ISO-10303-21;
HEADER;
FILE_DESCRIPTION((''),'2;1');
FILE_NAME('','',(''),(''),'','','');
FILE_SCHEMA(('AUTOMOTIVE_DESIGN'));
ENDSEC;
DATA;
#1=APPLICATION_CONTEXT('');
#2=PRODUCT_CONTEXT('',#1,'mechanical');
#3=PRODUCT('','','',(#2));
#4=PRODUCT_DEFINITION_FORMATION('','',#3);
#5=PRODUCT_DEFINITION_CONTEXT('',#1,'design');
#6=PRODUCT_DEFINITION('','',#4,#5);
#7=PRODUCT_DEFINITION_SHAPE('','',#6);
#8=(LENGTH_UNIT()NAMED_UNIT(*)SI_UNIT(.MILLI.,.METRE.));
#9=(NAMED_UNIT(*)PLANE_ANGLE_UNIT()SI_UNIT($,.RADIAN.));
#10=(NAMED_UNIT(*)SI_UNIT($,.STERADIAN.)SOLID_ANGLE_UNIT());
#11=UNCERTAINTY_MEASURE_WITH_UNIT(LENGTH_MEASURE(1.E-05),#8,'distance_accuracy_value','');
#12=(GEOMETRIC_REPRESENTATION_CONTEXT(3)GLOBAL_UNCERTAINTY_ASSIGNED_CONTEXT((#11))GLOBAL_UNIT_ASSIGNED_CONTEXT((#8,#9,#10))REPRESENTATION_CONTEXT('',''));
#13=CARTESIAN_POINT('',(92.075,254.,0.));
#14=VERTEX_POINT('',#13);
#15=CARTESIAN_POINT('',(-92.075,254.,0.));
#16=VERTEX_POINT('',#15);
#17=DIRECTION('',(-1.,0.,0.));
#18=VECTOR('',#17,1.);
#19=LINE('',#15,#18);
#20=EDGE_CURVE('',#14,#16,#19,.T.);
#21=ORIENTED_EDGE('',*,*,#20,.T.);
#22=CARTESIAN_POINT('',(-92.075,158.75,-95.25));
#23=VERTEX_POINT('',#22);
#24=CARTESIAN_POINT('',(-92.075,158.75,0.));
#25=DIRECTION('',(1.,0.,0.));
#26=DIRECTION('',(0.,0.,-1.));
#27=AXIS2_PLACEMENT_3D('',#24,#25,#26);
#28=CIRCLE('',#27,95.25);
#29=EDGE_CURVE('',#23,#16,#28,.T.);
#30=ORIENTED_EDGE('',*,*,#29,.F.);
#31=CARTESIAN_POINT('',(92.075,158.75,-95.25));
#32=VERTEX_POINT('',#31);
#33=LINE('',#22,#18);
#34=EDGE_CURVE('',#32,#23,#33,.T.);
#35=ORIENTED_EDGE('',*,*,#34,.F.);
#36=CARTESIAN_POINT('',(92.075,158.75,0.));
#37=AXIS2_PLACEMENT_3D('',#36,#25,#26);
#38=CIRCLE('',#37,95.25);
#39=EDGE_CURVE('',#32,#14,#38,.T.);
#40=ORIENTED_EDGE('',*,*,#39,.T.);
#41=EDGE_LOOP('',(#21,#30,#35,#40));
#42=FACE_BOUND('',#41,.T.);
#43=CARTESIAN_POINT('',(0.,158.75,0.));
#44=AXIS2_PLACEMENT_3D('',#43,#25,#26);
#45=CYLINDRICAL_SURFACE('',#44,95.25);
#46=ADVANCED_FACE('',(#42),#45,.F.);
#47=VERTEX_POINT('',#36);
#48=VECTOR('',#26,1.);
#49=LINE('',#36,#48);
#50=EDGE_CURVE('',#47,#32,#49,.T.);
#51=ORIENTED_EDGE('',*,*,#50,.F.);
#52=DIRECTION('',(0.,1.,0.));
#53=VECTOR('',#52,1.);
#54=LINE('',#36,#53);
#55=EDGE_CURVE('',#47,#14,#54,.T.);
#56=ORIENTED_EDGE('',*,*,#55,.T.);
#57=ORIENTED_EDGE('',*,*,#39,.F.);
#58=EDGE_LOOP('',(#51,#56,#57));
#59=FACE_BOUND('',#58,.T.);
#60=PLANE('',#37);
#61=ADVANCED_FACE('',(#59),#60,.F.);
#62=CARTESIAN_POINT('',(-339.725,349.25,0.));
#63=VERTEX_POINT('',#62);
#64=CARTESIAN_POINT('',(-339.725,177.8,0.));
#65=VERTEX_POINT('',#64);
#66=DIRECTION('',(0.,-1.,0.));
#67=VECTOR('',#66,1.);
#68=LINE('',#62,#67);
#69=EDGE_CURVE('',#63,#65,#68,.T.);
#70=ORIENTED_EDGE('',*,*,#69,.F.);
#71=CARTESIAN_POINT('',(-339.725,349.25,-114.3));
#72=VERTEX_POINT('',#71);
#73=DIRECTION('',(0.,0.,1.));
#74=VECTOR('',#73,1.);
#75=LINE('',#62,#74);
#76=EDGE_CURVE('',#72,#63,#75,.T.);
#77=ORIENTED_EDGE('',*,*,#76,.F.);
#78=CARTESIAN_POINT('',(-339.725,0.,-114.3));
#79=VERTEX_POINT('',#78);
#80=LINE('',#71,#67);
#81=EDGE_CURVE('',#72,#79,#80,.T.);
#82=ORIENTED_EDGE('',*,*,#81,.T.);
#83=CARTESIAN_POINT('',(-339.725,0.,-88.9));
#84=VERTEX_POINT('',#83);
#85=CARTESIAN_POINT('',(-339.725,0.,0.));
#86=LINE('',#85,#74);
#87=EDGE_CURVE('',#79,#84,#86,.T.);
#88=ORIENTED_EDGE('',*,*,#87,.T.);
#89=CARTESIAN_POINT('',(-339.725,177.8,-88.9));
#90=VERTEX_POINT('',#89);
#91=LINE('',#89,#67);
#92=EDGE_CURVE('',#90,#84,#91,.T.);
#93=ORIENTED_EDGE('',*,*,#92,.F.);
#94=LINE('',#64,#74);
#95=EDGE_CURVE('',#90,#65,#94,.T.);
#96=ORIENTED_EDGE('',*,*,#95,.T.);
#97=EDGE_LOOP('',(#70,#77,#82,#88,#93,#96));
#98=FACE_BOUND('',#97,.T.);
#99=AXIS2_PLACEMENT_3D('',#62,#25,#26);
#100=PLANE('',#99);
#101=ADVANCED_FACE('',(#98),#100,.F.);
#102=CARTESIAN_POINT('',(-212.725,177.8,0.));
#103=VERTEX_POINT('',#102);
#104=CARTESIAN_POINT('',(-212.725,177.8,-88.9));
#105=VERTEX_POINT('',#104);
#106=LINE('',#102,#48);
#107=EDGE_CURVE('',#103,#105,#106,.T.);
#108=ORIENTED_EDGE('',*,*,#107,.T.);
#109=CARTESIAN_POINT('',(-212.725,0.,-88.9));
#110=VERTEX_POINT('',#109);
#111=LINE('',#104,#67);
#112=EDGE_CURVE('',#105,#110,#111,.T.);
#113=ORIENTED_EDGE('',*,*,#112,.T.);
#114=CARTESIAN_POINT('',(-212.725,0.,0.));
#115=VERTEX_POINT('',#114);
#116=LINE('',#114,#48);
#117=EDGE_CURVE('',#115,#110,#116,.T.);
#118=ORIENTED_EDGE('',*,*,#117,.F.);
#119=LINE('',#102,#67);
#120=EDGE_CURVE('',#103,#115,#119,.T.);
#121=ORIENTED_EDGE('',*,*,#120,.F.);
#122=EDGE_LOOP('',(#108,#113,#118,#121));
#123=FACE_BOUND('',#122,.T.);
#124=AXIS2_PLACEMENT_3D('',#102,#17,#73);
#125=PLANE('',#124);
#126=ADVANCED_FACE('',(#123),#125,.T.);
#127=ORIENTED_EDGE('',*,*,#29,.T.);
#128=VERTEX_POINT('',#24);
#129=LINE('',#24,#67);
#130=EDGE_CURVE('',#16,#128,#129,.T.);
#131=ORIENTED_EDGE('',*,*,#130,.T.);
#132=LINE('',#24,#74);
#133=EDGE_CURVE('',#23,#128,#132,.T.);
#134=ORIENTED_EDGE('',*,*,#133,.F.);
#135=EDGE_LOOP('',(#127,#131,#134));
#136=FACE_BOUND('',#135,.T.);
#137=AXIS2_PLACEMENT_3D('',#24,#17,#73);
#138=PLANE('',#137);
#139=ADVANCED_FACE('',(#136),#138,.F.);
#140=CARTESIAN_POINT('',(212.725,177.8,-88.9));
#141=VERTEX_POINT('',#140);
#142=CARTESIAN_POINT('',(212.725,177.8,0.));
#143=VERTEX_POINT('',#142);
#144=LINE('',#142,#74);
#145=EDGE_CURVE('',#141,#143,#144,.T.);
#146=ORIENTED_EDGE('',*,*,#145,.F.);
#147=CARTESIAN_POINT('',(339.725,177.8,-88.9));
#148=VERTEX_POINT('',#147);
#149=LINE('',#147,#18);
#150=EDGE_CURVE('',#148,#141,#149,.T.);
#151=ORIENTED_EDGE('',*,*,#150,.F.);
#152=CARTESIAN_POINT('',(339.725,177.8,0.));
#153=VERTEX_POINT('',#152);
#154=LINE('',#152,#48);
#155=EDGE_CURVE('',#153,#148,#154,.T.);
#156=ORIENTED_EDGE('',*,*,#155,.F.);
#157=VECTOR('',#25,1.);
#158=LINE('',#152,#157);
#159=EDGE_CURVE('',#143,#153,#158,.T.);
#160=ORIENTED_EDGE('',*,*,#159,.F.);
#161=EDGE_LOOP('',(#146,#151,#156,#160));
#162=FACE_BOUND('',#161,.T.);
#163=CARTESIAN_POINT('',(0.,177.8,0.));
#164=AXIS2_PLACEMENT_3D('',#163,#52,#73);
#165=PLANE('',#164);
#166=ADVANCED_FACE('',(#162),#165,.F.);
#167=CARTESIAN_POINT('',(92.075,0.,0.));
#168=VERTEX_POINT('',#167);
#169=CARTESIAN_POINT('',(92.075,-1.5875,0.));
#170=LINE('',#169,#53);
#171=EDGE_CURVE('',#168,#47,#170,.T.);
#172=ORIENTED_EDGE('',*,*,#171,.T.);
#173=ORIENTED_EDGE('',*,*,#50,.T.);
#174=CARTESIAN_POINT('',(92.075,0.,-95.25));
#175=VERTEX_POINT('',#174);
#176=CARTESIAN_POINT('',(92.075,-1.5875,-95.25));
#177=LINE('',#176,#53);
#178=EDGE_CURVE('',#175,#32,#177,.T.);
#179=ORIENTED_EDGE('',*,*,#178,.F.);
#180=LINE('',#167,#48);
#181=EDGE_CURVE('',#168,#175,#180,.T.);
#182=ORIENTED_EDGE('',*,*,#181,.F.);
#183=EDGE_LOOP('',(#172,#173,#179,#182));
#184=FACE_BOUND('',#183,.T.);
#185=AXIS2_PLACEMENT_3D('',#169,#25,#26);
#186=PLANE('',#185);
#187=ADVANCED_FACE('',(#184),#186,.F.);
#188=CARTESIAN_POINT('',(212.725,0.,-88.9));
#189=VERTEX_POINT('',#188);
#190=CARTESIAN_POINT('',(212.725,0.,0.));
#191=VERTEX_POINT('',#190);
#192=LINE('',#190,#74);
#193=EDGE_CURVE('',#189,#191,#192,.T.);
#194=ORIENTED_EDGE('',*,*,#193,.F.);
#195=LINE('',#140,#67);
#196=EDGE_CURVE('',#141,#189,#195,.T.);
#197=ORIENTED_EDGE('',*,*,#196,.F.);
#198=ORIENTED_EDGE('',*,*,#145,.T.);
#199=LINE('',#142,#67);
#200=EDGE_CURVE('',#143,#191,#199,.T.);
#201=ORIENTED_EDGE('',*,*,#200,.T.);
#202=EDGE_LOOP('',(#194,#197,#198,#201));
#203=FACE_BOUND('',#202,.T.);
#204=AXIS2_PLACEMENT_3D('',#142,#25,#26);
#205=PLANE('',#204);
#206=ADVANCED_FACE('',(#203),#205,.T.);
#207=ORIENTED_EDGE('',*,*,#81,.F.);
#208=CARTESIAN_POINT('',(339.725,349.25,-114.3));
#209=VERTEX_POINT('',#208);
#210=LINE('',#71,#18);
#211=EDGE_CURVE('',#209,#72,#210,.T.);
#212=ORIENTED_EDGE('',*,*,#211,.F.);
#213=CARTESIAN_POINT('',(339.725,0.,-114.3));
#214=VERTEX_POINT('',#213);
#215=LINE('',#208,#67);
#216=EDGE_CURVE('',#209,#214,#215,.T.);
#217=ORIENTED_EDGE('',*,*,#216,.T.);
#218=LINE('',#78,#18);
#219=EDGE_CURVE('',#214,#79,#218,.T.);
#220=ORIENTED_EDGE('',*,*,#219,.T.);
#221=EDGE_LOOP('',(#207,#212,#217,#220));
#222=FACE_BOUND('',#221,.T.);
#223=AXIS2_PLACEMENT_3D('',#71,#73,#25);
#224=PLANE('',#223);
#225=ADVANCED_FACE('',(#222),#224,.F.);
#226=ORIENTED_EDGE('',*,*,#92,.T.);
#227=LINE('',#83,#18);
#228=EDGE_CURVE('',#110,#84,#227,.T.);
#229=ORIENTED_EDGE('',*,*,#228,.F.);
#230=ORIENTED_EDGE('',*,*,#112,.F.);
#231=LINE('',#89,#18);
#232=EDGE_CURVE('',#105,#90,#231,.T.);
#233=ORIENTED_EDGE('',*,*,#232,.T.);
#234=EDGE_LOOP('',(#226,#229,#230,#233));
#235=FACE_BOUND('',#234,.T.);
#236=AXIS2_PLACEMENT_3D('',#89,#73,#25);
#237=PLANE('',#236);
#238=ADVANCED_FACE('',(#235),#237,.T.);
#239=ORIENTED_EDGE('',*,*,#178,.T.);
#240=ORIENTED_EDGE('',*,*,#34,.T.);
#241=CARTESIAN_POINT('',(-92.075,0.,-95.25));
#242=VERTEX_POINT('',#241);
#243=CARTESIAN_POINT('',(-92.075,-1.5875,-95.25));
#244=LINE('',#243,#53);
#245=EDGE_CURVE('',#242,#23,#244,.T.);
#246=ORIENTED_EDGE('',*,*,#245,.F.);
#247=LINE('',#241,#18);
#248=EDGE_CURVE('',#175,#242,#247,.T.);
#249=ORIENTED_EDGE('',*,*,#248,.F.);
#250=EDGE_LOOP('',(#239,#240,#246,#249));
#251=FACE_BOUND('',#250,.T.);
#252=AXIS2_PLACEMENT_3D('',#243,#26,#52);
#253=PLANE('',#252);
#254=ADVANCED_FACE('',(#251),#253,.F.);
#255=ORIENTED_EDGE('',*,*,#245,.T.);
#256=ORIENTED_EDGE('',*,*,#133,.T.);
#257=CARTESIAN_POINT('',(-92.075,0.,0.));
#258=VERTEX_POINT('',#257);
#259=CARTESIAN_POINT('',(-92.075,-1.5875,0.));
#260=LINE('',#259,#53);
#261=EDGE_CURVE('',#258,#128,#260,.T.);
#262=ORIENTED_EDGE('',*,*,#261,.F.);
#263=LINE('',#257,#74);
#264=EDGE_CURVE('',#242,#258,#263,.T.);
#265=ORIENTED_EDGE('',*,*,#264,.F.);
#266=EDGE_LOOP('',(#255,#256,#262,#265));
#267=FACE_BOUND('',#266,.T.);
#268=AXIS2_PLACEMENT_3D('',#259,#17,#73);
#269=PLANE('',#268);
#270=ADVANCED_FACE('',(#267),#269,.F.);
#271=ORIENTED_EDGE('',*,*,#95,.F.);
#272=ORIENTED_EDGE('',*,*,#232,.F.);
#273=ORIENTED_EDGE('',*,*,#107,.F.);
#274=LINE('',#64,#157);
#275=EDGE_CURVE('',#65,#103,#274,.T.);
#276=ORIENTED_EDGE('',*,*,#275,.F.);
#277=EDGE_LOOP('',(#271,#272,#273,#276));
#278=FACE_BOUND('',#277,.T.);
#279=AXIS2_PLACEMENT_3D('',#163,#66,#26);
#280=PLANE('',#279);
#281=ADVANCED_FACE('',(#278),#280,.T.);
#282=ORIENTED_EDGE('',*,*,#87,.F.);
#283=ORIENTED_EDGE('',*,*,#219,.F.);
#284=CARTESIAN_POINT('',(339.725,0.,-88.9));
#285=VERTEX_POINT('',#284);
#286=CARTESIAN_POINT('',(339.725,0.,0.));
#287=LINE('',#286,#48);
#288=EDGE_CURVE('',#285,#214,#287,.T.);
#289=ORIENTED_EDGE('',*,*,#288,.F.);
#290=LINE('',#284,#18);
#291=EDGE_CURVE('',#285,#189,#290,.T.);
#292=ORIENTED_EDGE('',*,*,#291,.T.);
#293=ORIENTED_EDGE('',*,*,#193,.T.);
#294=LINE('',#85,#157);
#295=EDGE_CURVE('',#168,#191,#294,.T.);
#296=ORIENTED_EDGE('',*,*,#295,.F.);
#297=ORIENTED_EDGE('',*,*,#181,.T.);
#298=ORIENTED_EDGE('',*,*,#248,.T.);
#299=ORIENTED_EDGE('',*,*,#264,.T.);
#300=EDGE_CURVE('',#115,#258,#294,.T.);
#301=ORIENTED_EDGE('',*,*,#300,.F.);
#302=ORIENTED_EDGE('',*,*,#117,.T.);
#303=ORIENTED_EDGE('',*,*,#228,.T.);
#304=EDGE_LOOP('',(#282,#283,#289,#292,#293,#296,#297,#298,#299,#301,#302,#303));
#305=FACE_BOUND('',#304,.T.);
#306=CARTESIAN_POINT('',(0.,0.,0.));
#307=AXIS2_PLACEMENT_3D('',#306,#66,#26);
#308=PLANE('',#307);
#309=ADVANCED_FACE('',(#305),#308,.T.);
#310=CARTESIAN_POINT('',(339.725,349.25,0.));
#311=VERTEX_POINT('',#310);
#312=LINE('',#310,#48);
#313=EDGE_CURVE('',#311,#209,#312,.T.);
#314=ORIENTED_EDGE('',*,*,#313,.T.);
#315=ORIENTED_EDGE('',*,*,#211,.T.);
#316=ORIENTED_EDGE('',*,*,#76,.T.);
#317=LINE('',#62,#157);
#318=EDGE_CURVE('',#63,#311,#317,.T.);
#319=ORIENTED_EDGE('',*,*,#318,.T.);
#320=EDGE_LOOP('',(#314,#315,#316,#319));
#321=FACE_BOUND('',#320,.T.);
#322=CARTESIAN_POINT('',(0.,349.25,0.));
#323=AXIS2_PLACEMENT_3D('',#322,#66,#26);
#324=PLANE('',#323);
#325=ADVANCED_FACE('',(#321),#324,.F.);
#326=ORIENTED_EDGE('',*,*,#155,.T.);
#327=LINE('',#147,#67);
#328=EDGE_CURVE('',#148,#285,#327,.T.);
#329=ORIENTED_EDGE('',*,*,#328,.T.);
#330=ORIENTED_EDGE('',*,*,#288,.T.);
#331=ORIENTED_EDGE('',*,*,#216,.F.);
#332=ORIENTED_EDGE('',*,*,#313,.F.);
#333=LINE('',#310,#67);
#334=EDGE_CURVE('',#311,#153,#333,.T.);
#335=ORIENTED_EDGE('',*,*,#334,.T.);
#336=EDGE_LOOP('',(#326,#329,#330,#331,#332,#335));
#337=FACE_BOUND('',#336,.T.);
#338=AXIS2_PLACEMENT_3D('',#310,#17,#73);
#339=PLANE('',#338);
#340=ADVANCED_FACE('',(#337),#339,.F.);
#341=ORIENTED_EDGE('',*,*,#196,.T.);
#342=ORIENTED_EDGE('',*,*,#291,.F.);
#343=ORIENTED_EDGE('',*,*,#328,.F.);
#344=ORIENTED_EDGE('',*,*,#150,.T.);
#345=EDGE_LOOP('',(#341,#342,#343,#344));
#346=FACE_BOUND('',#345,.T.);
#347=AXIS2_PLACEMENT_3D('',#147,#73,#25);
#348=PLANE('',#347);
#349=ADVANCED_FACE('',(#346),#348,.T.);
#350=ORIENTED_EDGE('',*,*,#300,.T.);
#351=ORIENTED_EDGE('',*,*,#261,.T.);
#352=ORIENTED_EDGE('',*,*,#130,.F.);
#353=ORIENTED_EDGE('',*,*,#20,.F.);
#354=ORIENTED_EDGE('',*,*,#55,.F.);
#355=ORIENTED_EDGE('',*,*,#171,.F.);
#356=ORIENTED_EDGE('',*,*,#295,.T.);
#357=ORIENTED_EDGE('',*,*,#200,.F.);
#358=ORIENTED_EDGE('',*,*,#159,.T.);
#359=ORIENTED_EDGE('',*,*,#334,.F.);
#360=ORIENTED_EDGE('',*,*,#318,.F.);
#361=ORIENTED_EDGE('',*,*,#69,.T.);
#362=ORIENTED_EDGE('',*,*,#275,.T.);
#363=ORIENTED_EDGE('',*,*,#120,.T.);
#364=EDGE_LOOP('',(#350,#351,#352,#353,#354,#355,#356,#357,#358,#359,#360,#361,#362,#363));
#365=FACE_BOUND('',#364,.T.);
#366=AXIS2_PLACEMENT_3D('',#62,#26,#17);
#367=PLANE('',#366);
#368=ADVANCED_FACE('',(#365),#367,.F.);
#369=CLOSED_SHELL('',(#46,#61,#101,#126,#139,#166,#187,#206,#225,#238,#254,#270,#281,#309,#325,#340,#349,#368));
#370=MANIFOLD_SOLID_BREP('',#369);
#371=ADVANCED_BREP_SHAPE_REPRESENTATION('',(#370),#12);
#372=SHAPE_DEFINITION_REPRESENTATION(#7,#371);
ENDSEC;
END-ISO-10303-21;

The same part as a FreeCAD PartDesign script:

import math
import FreeCAD as App
import Part
import Sketcher

V = App.Vector
Q = App.Units.Quantity

doc = App.newDocument("Part")
body = doc.addObject("PartDesign::Body", "Body")

sketch1 = body.newObject("Sketcher::SketchObject", "Sketch")
sketch1.AttachmentSupport = (doc.getObject("XZ_Plane"), [""])
sketch1.MapMode = "FlatFace"
sketch1.addGeometry(Part.LineSegment(V(-339.725, -114.3, 0), V(-339.725, 0, 0)), False)
sketch1.addGeometry(Part.LineSegment(V(-339.725, 0, 0), V(339.725, 0, 0)), False)
sketch1.addGeometry(Part.LineSegment(V(339.725, 0, 0), V(339.725, -114.3, 0)), False)
sketch1.addGeometry(Part.LineSegment(V(339.725, -114.3, 0), V(-339.725, -114.3, 0)), False)
sketch1.addConstraint(Sketcher.Constraint("Coincident", 0, 2, 1, 1))
sketch1.addConstraint(Sketcher.Constraint("Coincident", 1, 2, 2, 1))
sketch1.addConstraint(Sketcher.Constraint("Coincident", 2, 2, 3, 1))
sketch1.addConstraint(Sketcher.Constraint("Coincident", 3, 2, 0, 1))
sketch1.addConstraint(Sketcher.Constraint("Vertical", 0))
sketch1.addConstraint(Sketcher.Constraint("Horizontal", 1))
sketch1.addConstraint(Sketcher.Constraint("Vertical", 2))
sketch1.addConstraint(Sketcher.Constraint("Horizontal", 3))
sketch1.addConstraint(Sketcher.Constraint("Symmetric", 0, 2, 1, 2, -1, 1))
sketch1.addConstraint(Sketcher.Constraint("DistanceY", 0, 1, 0, 2, Q("4.5 in")))
sketch1.addConstraint(Sketcher.Constraint("DistanceX", 1, 1, 1, 2, Q("26.75 in")))
pad1 = body.newObject("PartDesign::Pad", "Pad")
pad1.Profile = sketch1
pad1.Length = Q("13.75 in")
pad1.Reversed = True

sketch2 = body.newObject("Sketcher::SketchObject", "Sketch001")
sketch2.AttachmentSupport = (doc.getObject("XZ_Plane"), [""])
sketch2.MapMode = "FlatFace"
sketch2.addGeometry(Part.LineSegment(V(-92.075, -95.25, 0), V(-92.075, 0, 0)), False)
sketch2.addGeometry(Part.LineSegment(V(-92.075, 0, 0), V(92.075, 0, 0)), False)
sketch2.addGeometry(Part.LineSegment(V(92.075, 0, 0), V(92.075, -95.25, 0)), False)
sketch2.addGeometry(Part.LineSegment(V(92.075, -95.25, 0), V(-92.075, -95.25, 0)), False)
sketch2.addConstraint(Sketcher.Constraint("Coincident", 0, 2, 1, 1))
sketch2.addConstraint(Sketcher.Constraint("Coincident", 1, 2, 2, 1))
sketch2.addConstraint(Sketcher.Constraint("Coincident", 2, 2, 3, 1))
sketch2.addConstraint(Sketcher.Constraint("Coincident", 3, 2, 0, 1))
sketch2.addConstraint(Sketcher.Constraint("Vertical", 0))
sketch2.addConstraint(Sketcher.Constraint("Horizontal", 1))
sketch2.addConstraint(Sketcher.Constraint("Vertical", 2))
sketch2.addConstraint(Sketcher.Constraint("Horizontal", 3))
sketch2.addConstraint(Sketcher.Constraint("Symmetric", 0, 2, 1, 2, -1, 1))
sketch2.addConstraint(Sketcher.Constraint("DistanceX", 1, 1, 1, 2, Q("7.25 in")))
sketch2.addConstraint(Sketcher.Constraint("DistanceY", 0, 1, 0, 2, Q("3.75 in")))

sketch3 = body.newObject("Sketcher::SketchObject", "Sketch002")
sketch3.AttachmentSupport = (doc.getObject("YZ_Plane"), [""])
sketch3.MapMode = "FlatFace"
sketch3.addGeometry(Part.LineSegment(V(0, -47.625, 0), V(158.75, -47.625, 0)), False)
sketch3.addGeometry(Part.ArcOfCircle(Part.Circle(V(158.75, 0, 0), V(0, 0, 1), 47.625), math.radians(-90), math.radians(0)), False)
sketch3.addGeometry(Part.LineSegment(V(206.375, 0, 0), V(206.375, 25.4, 0)), False)
sketch3.addConstraint(Sketcher.Constraint("Tangent", 0, 2, 1, 1))
sketch3.addConstraint(Sketcher.Constraint("Tangent", 1, 2, 2, 1))
sketch3.addConstraint(Sketcher.Constraint("Horizontal", 0))
sketch3.addConstraint(Sketcher.Constraint("Vertical", 2))
sketch3.addConstraint(Sketcher.Constraint("PointOnObject", 1, 3, -1))
sketch3.addConstraint(Sketcher.Constraint("PointOnObject", 0, 1, -2))
sketch3.addConstraint(Sketcher.Constraint("DistanceY", 2, 1, 2, 2, Q("1 in")))
sketch3.addConstraint(Sketcher.Constraint("Radius", 1, Q("1.875 in")))
sketch3.addConstraint(Sketcher.Constraint("DistanceX", 0, 1, 0, 2, Q("6.25 in")))
doc.recompute()

subtractivepipe = body.newObject("PartDesign::SubtractivePipe", "SubtractivePipe")
subtractivepipe.Profile = sketch2
subtractivepipe.Spine = (sketch3, ["Edge1", "Edge2", "Edge3"])

sketch4 = body.newObject("Sketcher::SketchObject", "Sketch003")
sketch4.AttachmentSupport = (doc.getObject("XZ_Plane"), [""])
sketch4.MapMode = "FlatFace"
sketch4.addGeometry(Part.LineSegment(V(-339.725, -88.9, 0), V(-339.725, 0, 0)), False)
sketch4.addGeometry(Part.LineSegment(V(-339.725, 0, 0), V(-212.725, 0, 0)), False)
sketch4.addGeometry(Part.LineSegment(V(-212.725, 0, 0), V(-212.725, -88.9, 0)), False)
sketch4.addGeometry(Part.LineSegment(V(-212.725, -88.9, 0), V(-339.725, -88.9, 0)), False)
sketch4.addGeometry(Part.LineSegment(V(212.725, -88.9, 0), V(212.725, 0, 0)), False)
sketch4.addGeometry(Part.LineSegment(V(212.725, 0, 0), V(339.725, 0, 0)), False)
sketch4.addGeometry(Part.LineSegment(V(339.725, 0, 0), V(339.725, -88.9, 0)), False)
sketch4.addGeometry(Part.LineSegment(V(339.725, -88.9, 0), V(212.725, -88.9, 0)), False)
sketch4.addConstraint(Sketcher.Constraint("Coincident", 0, 2, 1, 1))
sketch4.addConstraint(Sketcher.Constraint("Coincident", 1, 2, 2, 1))
sketch4.addConstraint(Sketcher.Constraint("Coincident", 2, 2, 3, 1))
sketch4.addConstraint(Sketcher.Constraint("Coincident", 3, 2, 0, 1))
sketch4.addConstraint(Sketcher.Constraint("Coincident", 4, 2, 5, 1))
sketch4.addConstraint(Sketcher.Constraint("Coincident", 5, 2, 6, 1))
sketch4.addConstraint(Sketcher.Constraint("Coincident", 6, 2, 7, 1))
sketch4.addConstraint(Sketcher.Constraint("Coincident", 7, 2, 4, 1))
sketch4.addConstraint(Sketcher.Constraint("Vertical", 0))
sketch4.addConstraint(Sketcher.Constraint("Horizontal", 1))
sketch4.addConstraint(Sketcher.Constraint("Vertical", 2))
sketch4.addConstraint(Sketcher.Constraint("Horizontal", 3))
sketch4.addConstraint(Sketcher.Constraint("Vertical", 4))
sketch4.addConstraint(Sketcher.Constraint("Horizontal", 5))
sketch4.addConstraint(Sketcher.Constraint("Vertical", 6))
sketch4.addConstraint(Sketcher.Constraint("Horizontal", 7))
sketch4.addConstraint(Sketcher.Constraint("Symmetric", 1, 2, 4, 2, -1, 1))
sketch4.addConstraint(Sketcher.Constraint("Symmetric", 0, 2, 5, 2, -2))
sketch4.addConstraint(Sketcher.Constraint("Horizontal", 3, 2, 6, 2))
sketch4.addConstraint(Sketcher.Constraint("DistanceX", 1, 1, 1, 2, Q("5 in")))
sketch4.addConstraint(Sketcher.Constraint("DistanceY", 0, 1, 0, 2, Q("3.5 in")))
sketch4.addConstraint(Sketcher.Constraint("DistanceX", 1, 2, 4, 2, Q("16.75 in")))
pocket1 = body.newObject("PartDesign::Pocket", "Pocket")
pocket1.Profile = sketch4
pocket1.Length = Q("7 in")

doc.recompute()
